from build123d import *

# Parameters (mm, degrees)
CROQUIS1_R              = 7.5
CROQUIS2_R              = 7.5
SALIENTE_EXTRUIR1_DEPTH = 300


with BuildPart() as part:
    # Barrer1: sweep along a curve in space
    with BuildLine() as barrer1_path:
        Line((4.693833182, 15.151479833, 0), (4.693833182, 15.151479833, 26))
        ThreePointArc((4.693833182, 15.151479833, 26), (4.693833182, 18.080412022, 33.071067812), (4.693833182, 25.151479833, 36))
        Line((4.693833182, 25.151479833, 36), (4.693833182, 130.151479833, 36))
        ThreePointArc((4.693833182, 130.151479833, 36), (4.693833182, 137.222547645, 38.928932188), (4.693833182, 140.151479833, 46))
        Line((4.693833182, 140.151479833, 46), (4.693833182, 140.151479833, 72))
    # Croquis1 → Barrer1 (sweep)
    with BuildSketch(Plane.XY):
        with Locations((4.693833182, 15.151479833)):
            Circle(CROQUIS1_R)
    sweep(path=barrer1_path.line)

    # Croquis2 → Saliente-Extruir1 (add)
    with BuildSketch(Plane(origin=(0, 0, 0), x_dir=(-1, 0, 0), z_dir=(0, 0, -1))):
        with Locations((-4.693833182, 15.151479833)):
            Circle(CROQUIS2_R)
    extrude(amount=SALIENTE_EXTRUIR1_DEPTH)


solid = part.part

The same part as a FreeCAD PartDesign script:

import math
import FreeCAD as App
import Part
import Sketcher

V = App.Vector

doc = App.newDocument("Part")
body = doc.addObject("PartDesign::Body", "Body")

sketch1 = doc.addObject("Sketcher::SketchObject", "Sketch")
body.addObject(sketch1)
sketch1.AttachmentSupport = (doc.XY_Plane, [""])
sketch1.MapMode = "FlatFace"
sketch1.addGeometry(Part.Circle(V(5, 15, 0), V(0, 0, 1), 8), False)
sketch1.addConstraint(Sketcher.Constraint("Diameter", 0, 15.0))
sketch1.addConstraint(Sketcher.Constraint("DistanceY", -1, 1, 0, 3, 15.15148))
sketch1.addConstraint(Sketcher.Constraint("DistanceX", -1, 1, 0, 3, 4.693833))

sketch2 = doc.addObject("Sketcher::SketchObject", "Sketch001")
body.addObject(sketch2)
sketch2.AttachmentSupport = (doc.YZ_Plane, [""])
sketch2.MapMode = "FlatFace"
sketch2.AttachmentOffset = App.Placement(V(0, 0, 4.693833), App.Rotation())
sketch2.addGeometry(Part.LineSegment(V(15, 0, 0), V(15, 26, 0)), False)
sketch2.addGeometry(Part.ArcOfCircle(Part.Circle(V(25, 26, 0), V(0, 0, 1), 10), math.radians(90), math.radians(180)), False)
sketch2.addGeometry(Part.LineSegment(V(25, 36, 0), V(130, 36, 0)), False)
sketch2.addGeometry(Part.ArcOfCircle(Part.Circle(V(130, 46, 0), V(0, 0, 1), 10), math.radians(-90), math.radians(0)), False)
sketch2.addGeometry(Part.LineSegment(V(140, 46, 0), V(140, 72, 0)), False)
sketch2.addConstraint(Sketcher.Constraint("Tangent", 0, 2, 1, 2))
sketch2.addConstraint(Sketcher.Constraint("Tangent", 1, 1, 2, 1))
sketch2.addConstraint(Sketcher.Constraint("Tangent", 2, 2, 3, 1))
sketch2.addConstraint(Sketcher.Constraint("Tangent", 3, 2, 4, 1))
sketch2.addConstraint(Sketcher.Constraint("Vertical", 0))
sketch2.addConstraint(Sketcher.Constraint("Horizontal", 2))
sketch2.addConstraint(Sketcher.Constraint("Vertical", 4))
sketch2.addConstraint(Sketcher.Constraint("Equal", 1, 3))
sketch2.addConstraint(Sketcher.Constraint("PointOnObject", 0, 1, -1))
sketch2.addConstraint(Sketcher.Constraint("Equal", 0, 4))
sketch2.addConstraint(Sketcher.Constraint("Radius", 1, 10.0))
sketch2.addConstraint(Sketcher.Constraint("DistanceX", 2, 1, 2, 2, 105.0))
sketch2.addConstraint(Sketcher.Constraint("DistanceY", 0, 1, 0, 2, 26.0))
sketch2.addConstraint(Sketcher.Constraint("DistanceX", -1, 1, 1, 3, 25.15148))
doc.recompute()

additivepipe = doc.addObject("PartDesign::AdditivePipe", "AdditivePipe")
body.addObject(additivepipe)
additivepipe.Profile = sketch1
additivepipe.Spine = (sketch2, ["Edge1", "Edge2", "Edge3", "Edge4", "Edge5"])

sketch3 = doc.addObject("Sketcher::SketchObject", "Sketch002")
body.addObject(sketch3)
sketch3.AttachmentSupport = (doc.XY_Plane, [""])
sketch3.MapMode = "FlatFace"
sketch3.addGeometry(Part.Circle(V(5, 15, 0), V(0, 0, 1), 8), False)
sketch3.addConstraint(Sketcher.Constraint("Diameter", 0, 15.0))
sketch3.addConstraint(Sketcher.Constraint("DistanceY", -1, 1, 0, 3, 15.15148))
sketch3.addConstraint(Sketcher.Constraint("DistanceX", -1, 1, 0, 3, 4.693833))
pad1 = doc.addObject("PartDesign::Pad", "Pad")
body.addObject(pad1)
pad1.Profile = sketch3
pad1.Length = 300
pad1.Reversed = True

doc.recompute()
